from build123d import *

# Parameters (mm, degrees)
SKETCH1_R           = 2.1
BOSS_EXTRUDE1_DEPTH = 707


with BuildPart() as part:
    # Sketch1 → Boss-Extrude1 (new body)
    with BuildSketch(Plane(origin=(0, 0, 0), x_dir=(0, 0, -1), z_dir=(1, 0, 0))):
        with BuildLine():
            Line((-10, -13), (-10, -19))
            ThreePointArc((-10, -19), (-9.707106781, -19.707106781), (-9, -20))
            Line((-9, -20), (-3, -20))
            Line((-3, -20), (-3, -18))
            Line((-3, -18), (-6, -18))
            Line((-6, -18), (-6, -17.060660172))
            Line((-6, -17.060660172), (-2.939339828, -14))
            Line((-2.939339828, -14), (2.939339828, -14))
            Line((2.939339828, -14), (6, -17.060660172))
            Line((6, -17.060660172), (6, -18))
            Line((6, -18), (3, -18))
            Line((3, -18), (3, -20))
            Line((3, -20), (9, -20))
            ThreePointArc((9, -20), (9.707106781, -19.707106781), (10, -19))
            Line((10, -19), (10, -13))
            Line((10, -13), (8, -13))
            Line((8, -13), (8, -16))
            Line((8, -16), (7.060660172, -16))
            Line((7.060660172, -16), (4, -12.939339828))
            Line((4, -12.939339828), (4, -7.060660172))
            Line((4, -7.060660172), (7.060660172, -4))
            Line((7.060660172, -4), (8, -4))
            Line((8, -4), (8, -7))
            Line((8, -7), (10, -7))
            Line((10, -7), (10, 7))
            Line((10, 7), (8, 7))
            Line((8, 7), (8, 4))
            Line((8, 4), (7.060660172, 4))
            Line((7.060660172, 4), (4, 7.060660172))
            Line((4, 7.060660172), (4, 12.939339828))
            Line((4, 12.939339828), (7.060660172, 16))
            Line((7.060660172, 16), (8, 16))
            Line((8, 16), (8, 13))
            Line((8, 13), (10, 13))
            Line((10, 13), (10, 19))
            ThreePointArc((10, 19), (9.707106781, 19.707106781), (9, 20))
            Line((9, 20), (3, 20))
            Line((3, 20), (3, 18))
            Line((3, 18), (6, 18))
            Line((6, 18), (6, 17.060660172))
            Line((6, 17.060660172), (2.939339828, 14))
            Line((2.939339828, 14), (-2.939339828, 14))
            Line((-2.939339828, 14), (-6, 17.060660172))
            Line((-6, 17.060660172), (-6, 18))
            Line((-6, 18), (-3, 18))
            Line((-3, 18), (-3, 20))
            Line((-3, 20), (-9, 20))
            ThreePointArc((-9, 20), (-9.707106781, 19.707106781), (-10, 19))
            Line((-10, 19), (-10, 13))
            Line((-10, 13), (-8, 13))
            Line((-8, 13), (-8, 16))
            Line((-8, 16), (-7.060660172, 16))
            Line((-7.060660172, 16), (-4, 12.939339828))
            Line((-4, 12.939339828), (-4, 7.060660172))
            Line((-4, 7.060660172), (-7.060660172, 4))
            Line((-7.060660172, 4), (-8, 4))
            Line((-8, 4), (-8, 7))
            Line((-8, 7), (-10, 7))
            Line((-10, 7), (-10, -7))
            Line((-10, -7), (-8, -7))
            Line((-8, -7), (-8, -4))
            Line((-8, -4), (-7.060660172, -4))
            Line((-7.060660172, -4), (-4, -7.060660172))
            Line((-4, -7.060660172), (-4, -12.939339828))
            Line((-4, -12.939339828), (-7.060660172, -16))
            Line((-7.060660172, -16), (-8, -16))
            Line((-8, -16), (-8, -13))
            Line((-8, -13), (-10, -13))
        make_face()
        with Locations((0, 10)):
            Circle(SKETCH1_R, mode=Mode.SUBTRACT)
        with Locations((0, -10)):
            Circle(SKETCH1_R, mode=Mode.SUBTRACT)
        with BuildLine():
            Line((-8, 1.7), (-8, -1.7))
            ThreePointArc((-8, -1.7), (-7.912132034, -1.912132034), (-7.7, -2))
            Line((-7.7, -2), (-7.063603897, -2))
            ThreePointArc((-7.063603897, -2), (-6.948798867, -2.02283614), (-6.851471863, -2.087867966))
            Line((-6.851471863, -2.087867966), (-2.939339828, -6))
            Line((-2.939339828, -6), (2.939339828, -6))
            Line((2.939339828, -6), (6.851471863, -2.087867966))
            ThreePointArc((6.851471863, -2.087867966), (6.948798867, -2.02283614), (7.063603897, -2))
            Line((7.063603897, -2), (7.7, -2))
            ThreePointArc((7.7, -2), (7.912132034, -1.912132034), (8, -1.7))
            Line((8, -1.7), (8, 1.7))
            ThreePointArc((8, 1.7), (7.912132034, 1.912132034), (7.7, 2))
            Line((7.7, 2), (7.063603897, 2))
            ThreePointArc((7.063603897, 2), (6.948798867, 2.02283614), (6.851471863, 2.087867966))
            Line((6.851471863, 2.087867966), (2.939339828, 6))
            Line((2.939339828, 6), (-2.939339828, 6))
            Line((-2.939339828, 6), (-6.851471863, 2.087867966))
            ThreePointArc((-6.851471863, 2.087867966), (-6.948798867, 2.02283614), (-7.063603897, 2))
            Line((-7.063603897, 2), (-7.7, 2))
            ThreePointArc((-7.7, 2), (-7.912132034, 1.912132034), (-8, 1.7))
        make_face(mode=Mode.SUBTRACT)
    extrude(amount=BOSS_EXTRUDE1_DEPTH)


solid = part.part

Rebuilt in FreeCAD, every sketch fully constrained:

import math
import FreeCAD as App
import Part
import Sketcher
from FreeCAD import Vector
Q = App.Units.Quantity

doc = App.newDocument("Part")
body = doc.addObject("PartDesign::Body", "Body")

sketch1 = body.newObject("Sketcher::SketchObject", "Sketch")
sketch1.AttachmentSupport = (doc.getObject("YZ_Plane"), [""])
sketch1.MapMode = "FlatFace"
sketch1.addGeometry(Part.LineSegment(Vector(-13, 10, 0), Vector(-19, 10, 0)), False)
sketch1.addGeometry(Part.ArcOfCircle(Part.Circle(Vector(-19, 9, 0), Vector(0, 0, 1), 1), math.radians(90), math.radians(180)), False)
sketch1.addGeometry(Part.LineSegment(Vector(-20, 9, 0), Vector(-20, 3, 0)), False)
sketch1.addGeometry(Part.LineSegment(Vector(-20, 3, 0), Vector(-18, 3, 0)), False)
sketch1.addGeometry(Part.LineSegment(Vector(-18, 3, 0), Vector(-18, 6, 0)), False)
sketch1.addGeometry(Part.LineSegment(Vector(-18, 6, 0), Vector(-17.06, 6, 0)), False)
sketch1.addGeometry(Part.LineSegment(Vector(-17.06, 6, 0), Vector(-14, 2.94, 0)), False)
sketch1.addGeometry(Part.LineSegment(Vector(-14, 2.94, 0), Vector(-14, -2.94, 0)), False)
sketch1.addGeometry(Part.LineSegment(Vector(-14, -2.94, 0), Vector(-17.06, -6, 0)), False)
sketch1.addGeometry(Part.LineSegment(Vector(-17.06, -6, 0), Vector(-18, -6, 0)), False)
sketch1.addGeometry(Part.LineSegment(Vector(-18, -6, 0), Vector(-18, -3, 0)), False)
sketch1.addGeometry(Part.LineSegment(Vector(-18, -3, 0), Vector(-20, -3, 0)), False)
sketch1.addGeometry(Part.LineSegment(Vector(-20, -3, 0), Vector(-20, -9, 0)), False)
sketch1.addGeometry(Part.ArcOfCircle(Part.Circle(Vector(-19, -9, 0), Vector(0, 0, 1), 1), math.radians(-180), math.radians(-90)), False)
sketch1.addGeometry(Part.LineSegment(Vector(-19, -10, 0), Vector(-13, -10, 0)), False)
sketch1.addGeometry(Part.LineSegment(Vector(-13, -10, 0), Vector(-13, -8, 0)), False)
sketch1.addGeometry(Part.LineSegment(Vector(-13, -8, 0), Vector(-16, -8, 0)), False)
sketch1.addGeometry(Part.LineSegment(Vector(-16, -8, 0), Vector(-16, -7.06, 0)), False)
sketch1.addGeometry(Part.LineSegment(Vector(-16, -7.06, 0), Vector(-12.94, -4, 0)), False)
sketch1.addGeometry(Part.LineSegment(Vector(-12.94, -4, 0), Vector(-7.06, -4, 0)), False)
sketch1.addGeometry(Part.LineSegment(Vector(-7.06, -4, 0), Vector(-4, -7.06, 0)), False)
sketch1.addGeometry(Part.LineSegment(Vector(-4, -7.06, 0), Vector(-4, -8, 0)), False)
sketch1.addGeometry(Part.LineSegment(Vector(-4, -8, 0), Vector(-7, -8, 0)), False)
sketch1.addGeometry(Part.LineSegment(Vector(-7, -8, 0), Vector(-7, -10, 0)), False)
sketch1.addGeometry(Part.LineSegment(Vector(-7, -10, 0), Vector(7, -10, 0)), False)
sketch1.addGeometry(Part.LineSegment(Vector(7, -10, 0), Vector(7, -8, 0)), False)
sketch1.addGeometry(Part.LineSegment(Vector(7, -8, 0), Vector(4, -8, 0)), False)
sketch1.addGeometry(Part.LineSegment(Vector(4, -8, 0), Vector(4, -7.06, 0)), False)
sketch1.addGeometry(Part.LineSegment(Vector(4, -7.06, 0), Vector(7.06, -4, 0)), False)
sketch1.addGeometry(Part.LineSegment(Vector(7.06, -4, 0), Vector(12.94, -4, 0)), False)
sketch1.addGeometry(Part.LineSegment(Vector(12.94, -4, 0), Vector(16, -7.06, 0)), False)
sketch1.addGeometry(Part.LineSegment(Vector(16, -7.06, 0), Vector(16, -8, 0)), False)
sketch1.addGeometry(Part.LineSegment(Vector(16, -8, 0), Vector(13, -8, 0)), False)
sketch1.addGeometry(Part.LineSegment(Vector(13, -8, 0), Vector(13, -10, 0)), False)
sketch1.addGeometry(Part.LineSegment(Vector(13, -10, 0), Vector(19, -10, 0)), False)
sketch1.addGeometry(Part.ArcOfCircle(Part.Circle(Vector(19, -9, 0), Vector(0, 0, 1), 1), math.radians(-90), math.radians(0)), False)
sketch1.addGeometry(Part.LineSegment(Vector(20, -9, 0), Vector(20, -3, 0)), False)
sketch1.addGeometry(Part.LineSegment(Vector(20, -3, 0), Vector(18, -3, 0)), False)
sketch1.addGeometry(Part.LineSegment(Vector(18, -3, 0), Vector(18, -6, 0)), False)
sketch1.addGeometry(Part.LineSegment(Vector(18, -6, 0), Vector(17.06, -6, 0)), False)
sketch1.addGeometry(Part.LineSegment(Vector(17.06, -6, 0), Vector(14, -2.94, 0)), False)
sketch1.addGeometry(Part.LineSegment(Vector(14, -2.94, 0), Vector(14, 2.94, 0)), False)
sketch1.addGeometry(Part.LineSegment(Vector(14, 2.94, 0), Vector(17.06, 6, 0)), False)
sketch1.addGeometry(Part.LineSegment(Vector(17.06, 6, 0), Vector(18, 6, 0)), False)
sketch1.addGeometry(Part.LineSegment(Vector(18, 6, 0), Vector(18, 3, 0)), False)
sketch1.addGeometry(Part.LineSegment(Vector(18, 3, 0), Vector(20, 3, 0)), False)
sketch1.addGeometry(Part.LineSegment(Vector(20, 3, 0), Vector(20, 9, 0)), False)
sketch1.addGeometry(Part.ArcOfCircle(Part.Circle(Vector(19, 9, 0), Vector(0, 0, 1), 1), math.radians(0), math.radians(90)), False)
sketch1.addGeometry(Part.LineSegment(Vector(19, 10, 0), Vector(13, 10, 0)), False)
sketch1.addGeometry(Part.LineSegment(Vector(13, 10, 0), Vector(13, 8, 0)), False)
sketch1.addGeometry(Part.LineSegment(Vector(13, 8, 0), Vector(16, 8, 0)), False)
sketch1.addGeometry(Part.LineSegment(Vector(16, 8, 0), Vector(16, 7.06, 0)), False)
sketch1.addGeometry(Part.LineSegment(Vector(16, 7.06, 0), Vector(12.94, 4, 0)), False)
sketch1.addGeometry(Part.LineSegment(Vector(12.94, 4, 0), Vector(7.06, 4, 0)), False)
sketch1.addGeometry(Part.LineSegment(Vector(7.06, 4, 0), Vector(4, 7.06, 0)), False)
sketch1.addGeometry(Part.LineSegment(Vector(4, 7.06, 0), Vector(4, 8, 0)), False)
sketch1.addGeometry(Part.LineSegment(Vector(4, 8, 0), Vector(7, 8, 0)), False)
sketch1.addGeometry(Part.LineSegment(Vector(7, 8, 0), Vector(7, 10, 0)), False)
sketch1.addGeometry(Part.LineSegment(Vector(7, 10, 0), Vector(-7, 10, 0)), False)
sketch1.addGeometry(Part.LineSegment(Vector(-7, 10, 0), Vector(-7, 8, 0)), False)
sketch1.addGeometry(Part.LineSegment(Vector(-7, 8, 0), Vector(-4, 8, 0)), False)
sketch1.addGeometry(Part.LineSegment(Vector(-4, 8, 0), Vector(-4, 7.06, 0)), False)
sketch1.addGeometry(Part.LineSegment(Vector(-4, 7.06, 0), Vector(-7.06, 4, 0)), False)
sketch1.addGeometry(Part.LineSegment(Vector(-7.06, 4, 0), Vector(-12.94, 4, 0)), False)
sketch1.addGeometry(Part.LineSegment(Vector(-12.94, 4, 0), Vector(-16, 7.06, 0)), False)
sketch1.addGeometry(Part.LineSegment(Vector(-16, 7.06, 0), Vector(-16, 8, 0)), False)
sketch1.addGeometry(Part.LineSegment(Vector(-16, 8, 0), Vector(-13, 8, 0)), False)
sketch1.addGeometry(Part.LineSegment(Vector(-13, 8, 0), Vector(-13, 10, 0)), False)
sketch1.addGeometry(Part.Circle(Vector(-10, 0, 0), Vector(0, 0, 1), 2.1), False)
sketch1.addGeometry(Part.LineSegment(Vector(-1.7, 8, 0), Vector(1.7, 8, 0)), False)
sketch1.addGeometry(Part.ArcOfCircle(Part.Circle(Vector(1.7, 7.7, 0), Vector(0, 0, 1), 0.3), math.radians(0), math.radians(90)), False)
sketch1.addGeometry(Part.LineSegment(Vector(2, 7.7, 0), Vector(2, 7.06, 0)), False)
sketch1.addGeometry(Part.ArcOfCircle(Part.Circle(Vector(2.3, 7.06, 0), Vector(0, 0, 1), 0.3), math.radians(180), math.radians(225)), False)
sketch1.addGeometry(Part.LineSegment(Vector(2.09, 6.85, 0), Vector(6, 2.94, 0)), False)
sketch1.addGeometry(Part.LineSegment(Vector(6, 2.94, 0), Vector(6, -2.94, 0)), False)
sketch1.addGeometry(Part.LineSegment(Vector(6, -2.94, 0), Vector(2.09, -6.85, 0)), False)
sketch1.addGeometry(Part.ArcOfCircle(Part.Circle(Vector(2.3, -7.06, 0), Vector(0, 0, 1), 0.3), math.radians(135), math.radians(180)), False)
sketch1.addGeometry(Part.LineSegment(Vector(2, -7.06, 0), Vector(2, -7.7, 0)), False)
sketch1.addGeometry(Part.ArcOfCircle(Part.Circle(Vector(1.7, -7.7, 0), Vector(0, 0, 1), 0.3), math.radians(-90), math.radians(0)), False)
sketch1.addGeometry(Part.LineSegment(Vector(1.7, -8, 0), Vector(-1.7, -8, 0)), False)
sketch1.addGeometry(Part.ArcOfCircle(Part.Circle(Vector(-1.7, -7.7, 0), Vector(0, 0, 1), 0.3), math.radians(-180), math.radians(-90)), False)
sketch1.addGeometry(Part.LineSegment(Vector(-2, -7.7, 0), Vector(-2, -7.06, 0)), False)
sketch1.addGeometry(Part.ArcOfCircle(Part.Circle(Vector(-2.3, -7.06, 0), Vector(0, 0, 1), 0.3), math.radians(0), math.radians(45)), False)
sketch1.addGeometry(Part.LineSegment(Vector(-2.09, -6.85, 0), Vector(-6, -2.94, 0)), False)
sketch1.addGeometry(Part.LineSegment(Vector(-6, -2.94, 0), Vector(-6, 2.94, 0)), False)
sketch1.addGeometry(Part.LineSegment(Vector(-6, 2.94, 0), Vector(-2.09, 6.85, 0)), False)
sketch1.addGeometry(Part.ArcOfCircle(Part.Circle(Vector(-2.3, 7.06, 0), Vector(0, 0, 1), 0.3), math.radians(-45), math.radians(0)), False)
sketch1.addGeometry(Part.LineSegment(Vector(-2, 7.06, 0), Vector(-2, 7.7, 0)), False)
sketch1.addGeometry(Part.ArcOfCircle(Part.Circle(Vector(-1.7, 7.7, 0), Vector(0, 0, 1), 0.3), math.radians(90), math.radians(180)), False)
sketch1.addGeometry(Part.Circle(Vector(10, 0, 0), Vector(0, 0, 1), 2.1), False)
sketch1.addConstraint(Sketcher.Constraint("Tangent", 0, 2, 1, 1))
sketch1.addConstraint(Sketcher.Constraint("Tangent", 1, 2, 2, 1))
sketch1.addConstraint(Sketcher.Constraint("Coincident", 2, 2, 3, 1))
sketch1.addConstraint(Sketcher.Constraint("Coincident", 3, 2, 4, 1))
sketch1.addConstraint(Sketcher.Constraint("Coincident", 4, 2, 5, 1))
sketch1.addConstraint(Sketcher.Constraint("Coincident", 5, 2, 6, 1))
sketch1.addConstraint(Sketcher.Constraint("Coincident", 6, 2, 7, 1))
sketch1.addConstraint(Sketcher.Constraint("Coincident", 7, 2, 8, 1))
sketch1.addConstraint(Sketcher.Constraint("Coincident", 8, 2, 9, 1))
sketch1.addConstraint(Sketcher.Constraint("Coincident", 9, 2, 10, 1))
sketch1.addConstraint(Sketcher.Constraint("Coincident", 10, 2, 11, 1))
sketch1.addConstraint(Sketcher.Constraint("Coincident", 11, 2, 12, 1))
sketch1.addConstraint(Sketcher.Constraint("Tangent", 12, 2, 13, 1))
sketch1.addConstraint(Sketcher.Constraint("Tangent", 13, 2, 14, 1))
sketch1.addConstraint(Sketcher.Constraint("Coincident", 14, 2, 15, 1))
sketch1.addConstraint(Sketcher.Constraint("Coincident", 15, 2, 16, 1))
sketch1.addConstraint(Sketcher.Constraint("Coincident", 16, 2, 17, 1))
sketch1.addConstraint(Sketcher.Constraint("Coincident", 17, 2, 18, 1))
sketch1.addConstraint(Sketcher.Constraint("Coincident", 18, 2, 19, 1))
sketch1.addConstraint(Sketcher.Constraint("Coincident", 19, 2, 20, 1))
sketch1.addConstraint(Sketcher.Constraint("Coincident", 20, 2, 21, 1))
sketch1.addConstraint(Sketcher.Constraint("Coincident", 21, 2, 22, 1))
sketch1.addConstraint(Sketcher.Constraint("Coincident", 22, 2, 23, 1))
sketch1.addConstraint(Sketcher.Constraint("Coincident", 23, 2, 24, 1))
sketch1.addConstraint(Sketcher.Constraint("Coincident", 24, 2, 25, 1))
sketch1.addConstraint(Sketcher.Constraint("Coincident", 25, 2, 26, 1))
sketch1.addConstraint(Sketcher.Constraint("Coincident", 26, 2, 27, 1))
sketch1.addConstraint(Sketcher.Constraint("Coincident", 27, 2, 28, 1))
sketch1.addConstraint(Sketcher.Constraint("Coincident", 28, 2, 29, 1))
sketch1.addConstraint(Sketcher.Constraint("Coincident", 29, 2, 30, 1))
sketch1.addConstraint(Sketcher.Constraint("Coincident", 30, 2, 31, 1))
sketch1.addConstraint(Sketcher.Constraint("Coincident", 31, 2, 32, 1))
sketch1.addConstraint(Sketcher.Constraint("Coincident", 32, 2, 33, 1))
sketch1.addConstraint(Sketcher.Constraint("Coincident", 33, 2, 34, 1))
sketch1.addConstraint(Sketcher.Constraint("Tangent", 34, 2, 35, 1))
sketch1.addConstraint(Sketcher.Constraint("Tangent", 35, 2, 36, 1))
sketch1.addConstraint(Sketcher.Constraint("Coincident", 36, 2, 37, 1))
sketch1.addConstraint(Sketcher.Constraint("Coincident", 37, 2, 38, 1))
sketch1.addConstraint(Sketcher.Constraint("Coincident", 38, 2, 39, 1))
sketch1.addConstraint(Sketcher.Constraint("Coincident", 39, 2, 40, 1))
sketch1.addConstraint(Sketcher.Constraint("Coincident", 40, 2, 41, 1))
sketch1.addConstraint(Sketcher.Constraint("Coincident", 41, 2, 42, 1))
sketch1.addConstraint(Sketcher.Constraint("Coincident", 42, 2, 43, 1))
sketch1.addConstraint(Sketcher.Constraint("Coincident", 43, 2, 44, 1))
sketch1.addConstraint(Sketcher.Constraint("Coincident", 44, 2, 45, 1))
sketch1.addConstraint(Sketcher.Constraint("Coincident", 45, 2, 46, 1))
sketch1.addConstraint(Sketcher.Constraint("Tangent", 46, 2, 47, 1))
sketch1.addConstraint(Sketcher.Constraint("Tangent", 47, 2, 48, 1))
sketch1.addConstraint(Sketcher.Constraint("Coincident", 48, 2, 49, 1))
sketch1.addConstraint(Sketcher.Constraint("Coincident", 49, 2, 50, 1))
sketch1.addConstraint(Sketcher.Constraint("Coincident", 50, 2, 51, 1))
sketch1.addConstraint(Sketcher.Constraint("Coincident", 51, 2, 52, 1))
sketch1.addConstraint(Sketcher.Constraint("Coincident", 52, 2, 53, 1))
sketch1.addConstraint(Sketcher.Constraint("Coincident", 53, 2, 54, 1))
sketch1.addConstraint(Sketcher.Constraint("Coincident", 54, 2, 55, 1))
sketch1.addConstraint(Sketcher.Constraint("Coincident", 55, 2, 56, 1))
sketch1.addConstraint(Sketcher.Constraint("Coincident", 56, 2, 57, 1))
sketch1.addConstraint(Sketcher.Constraint("Coincident", 57, 2, 58, 1))
sketch1.addConstraint(Sketcher.Constraint("Coincident", 58, 2, 59, 1))
sketch1.addConstraint(Sketcher.Constraint("Coincident", 59, 2, 60, 1))
sketch1.addConstraint(Sketcher.Constraint("Coincident", 60, 2, 61, 1))
sketch1.addConstraint(Sketcher.Constraint("Coincident", 61, 2, 62, 1))
sketch1.addConstraint(Sketcher.Constraint("Coincident", 62, 2, 63, 1))
sketch1.addConstraint(Sketcher.Constraint("Coincident", 63, 2, 64, 1))
sketch1.addConstraint(Sketcher.Constraint("Coincident", 64, 2, 65, 1))
sketch1.addConstraint(Sketcher.Constraint("Coincident", 65, 2, 66, 1))
sketch1.addConstraint(Sketcher.Constraint("Coincident", 66, 2, 67, 1))
sketch1.addConstraint(Sketcher.Constraint("Coincident", 67, 2, 0, 1))
sketch1.addConstraint(Sketcher.Constraint("Tangent", 69, 2, 70, 2))
sketch1.addConstraint(Sketcher.Constraint("Tangent", 70, 1, 71, 1))
sketch1.addConstraint(Sketcher.Constraint("Tangent", 71, 2, 72, 1))
sketch1.addConstraint(Sketcher.Constraint("Tangent", 72, 2, 73, 1))
sketch1.addConstraint(Sketcher.Constraint("Coincident", 73, 2, 74, 1))
sketch1.addConstraint(Sketcher.Constraint("Coincident", 74, 2, 75, 1))
sketch1.addConstraint(Sketcher.Constraint("Tangent", 75, 2, 76, 1))
sketch1.addConstraint(Sketcher.Constraint("Tangent", 76, 2, 77, 1))
sketch1.addConstraint(Sketcher.Constraint("Tangent", 77, 2, 78, 2))
sketch1.addConstraint(Sketcher.Constraint("Tangent", 78, 1, 79, 1))
sketch1.addConstraint(Sketcher.Constraint("Tangent", 79, 2, 80, 2))
sketch1.addConstraint(Sketcher.Constraint("Tangent", 80, 1, 81, 1))
sketch1.addConstraint(Sketcher.Constraint("Tangent", 81, 2, 82, 1))
sketch1.addConstraint(Sketcher.Constraint("Tangent", 82, 2, 83, 1))
sketch1.addConstraint(Sketcher.Constraint("Coincident", 83, 2, 84, 1))
sketch1.addConstraint(Sketcher.Constraint("Coincident", 84, 2, 85, 1))
sketch1.addConstraint(Sketcher.Constraint("Tangent", 85, 2, 86, 1))
sketch1.addConstraint(Sketcher.Constraint("Tangent", 86, 2, 87, 1))
sketch1.addConstraint(Sketcher.Constraint("Tangent", 87, 2, 88, 2))
sketch1.addConstraint(Sketcher.Constraint("Tangent", 88, 1, 69, 1))
sketch1.addConstraint(Sketcher.Constraint("Horizontal", 0))
sketch1.addConstraint(Sketcher.Constraint("Vertical", 2))
sketch1.addConstraint(Sketcher.Constraint("Horizontal", 3))
sketch1.addConstraint(Sketcher.Constraint("Vertical", 4))
sketch1.addConstraint(Sketcher.Constraint("Horizontal", 5))
sketch1.addConstraint(Sketcher.Constraint("Vertical", 7))
sketch1.addConstraint(Sketcher.Constraint("Horizontal", 9))
sketch1.addConstraint(Sketcher.Constraint("Vertical", 10))
sketch1.addConstraint(Sketcher.Constraint("Horizontal", 11))
sketch1.addConstraint(Sketcher.Constraint("Vertical", 12))
sketch1.addConstraint(Sketcher.Constraint("Horizontal", 14))
sketch1.addConstraint(Sketcher.Constraint("Vertical", 15))
sketch1.addConstraint(Sketcher.Constraint("Horizontal", 16))
sketch1.addConstraint(Sketcher.Constraint("Vertical", 17))
sketch1.addConstraint(Sketcher.Constraint("Horizontal", 19))
sketch1.addConstraint(Sketcher.Constraint("Vertical", 21))
sketch1.addConstraint(Sketcher.Constraint("Horizontal", 22))
sketch1.addConstraint(Sketcher.Constraint("Vertical", 23))
sketch1.addConstraint(Sketcher.Constraint("Horizontal", 24))
sketch1.addConstraint(Sketcher.Constraint("Vertical", 25))
sketch1.addConstraint(Sketcher.Constraint("Horizontal", 26))
sketch1.addConstraint(Sketcher.Constraint("Vertical", 27))
sketch1.addConstraint(Sketcher.Constraint("Horizontal", 29))
sketch1.addConstraint(Sketcher.Constraint("Vertical", 31))
sketch1.addConstraint(Sketcher.Constraint("Horizontal", 32))
sketch1.addConstraint(Sketcher.Constraint("Vertical", 33))
sketch1.addConstraint(Sketcher.Constraint("Horizontal", 34))
sketch1.addConstraint(Sketcher.Constraint("Vertical", 36))
sketch1.addConstraint(Sketcher.Constraint("Horizontal", 37))
sketch1.addConstraint(Sketcher.Constraint("Vertical", 38))
sketch1.addConstraint(Sketcher.Constraint("Horizontal", 39))
sketch1.addConstraint(Sketcher.Constraint("Vertical", 41))
sketch1.addConstraint(Sketcher.Constraint("Horizontal", 43))
sketch1.addConstraint(Sketcher.Constraint("Vertical", 44))
sketch1.addConstraint(Sketcher.Constraint("Horizontal", 45))
sketch1.addConstraint(Sketcher.Constraint("Vertical", 46))
sketch1.addConstraint(Sketcher.Constraint("Horizontal", 48))
sketch1.addConstraint(Sketcher.Constraint("Vertical", 49))
sketch1.addConstraint(Sketcher.Constraint("Horizontal", 50))
sketch1.addConstraint(Sketcher.Constraint("Vertical", 51))
sketch1.addConstraint(Sketcher.Constraint("Horizontal", 53))
sketch1.addConstraint(Sketcher.Constraint("Vertical", 55))
sketch1.addConstraint(Sketcher.Constraint("Horizontal", 56))
sketch1.addConstraint(Sketcher.Constraint("Vertical", 57))
sketch1.addConstraint(Sketcher.Constraint("Horizontal", 58))
sketch1.addConstraint(Sketcher.Constraint("Vertical", 59))
sketch1.addConstraint(Sketcher.Constraint("Horizontal", 60))
sketch1.addConstraint(Sketcher.Constraint("Vertical", 61))
sketch1.addConstraint(Sketcher.Constraint("Horizontal", 63))
sketch1.addConstraint(Sketcher.Constraint("Vertical", 65))
sketch1.addConstraint(Sketcher.Constraint("Horizontal", 66))
sketch1.addConstraint(Sketcher.Constraint("Vertical", 67))
sketch1.addConstraint(Sketcher.Constraint("Horizontal", 69))
sketch1.addConstraint(Sketcher.Constraint("Vertical", 71))
sketch1.addConstraint(Sketcher.Constraint("Vertical", 74))
sketch1.addConstraint(Sketcher.Constraint("Vertical", 77))
sketch1.addConstraint(Sketcher.Constraint("Horizontal", 79))
sketch1.addConstraint(Sketcher.Constraint("Vertical", 81))
sketch1.addConstraint(Sketcher.Constraint("Vertical", 84))
sketch1.addConstraint(Sketcher.Constraint("Vertical", 87))
sketch1.addConstraint(Sketcher.Constraint("Equal", 1, 13))
sketch1.addConstraint(Sketcher.Constraint("Equal", 13, 35))
sketch1.addConstraint(Sketcher.Constraint("Equal", 35, 47))
sketch1.addConstraint(Sketcher.Constraint("Equal", 70, 72))
sketch1.addConstraint(Sketcher.Constraint("Equal", 72, 76))
sketch1.addConstraint(Sketcher.Constraint("Equal", 76, 78))
sketch1.addConstraint(Sketcher.Constraint("Equal", 78, 80))
sketch1.addConstraint(Sketcher.Constraint("Equal", 80, 82))
sketch1.addConstraint(Sketcher.Constraint("Equal", 82, 86))
sketch1.addConstraint(Sketcher.Constraint("Equal", 86, 88))
sketch1.addConstraint(Sketcher.Constraint("Equal", 68, 89))
sketch1.addConstraint(Sketcher.Constraint("Symmetric", 1, 3, 35, 3, -1, 1))
sketch1.addConstraint(Sketcher.Constraint("Symmetric", 13, 3, 47, 3, -1, 1))
sketch1.addConstraint(Sketcher.Constraint("Symmetric", 70, 3, 80, 3, -1, 1))
sketch1.addConstraint(Sketcher.Constraint("Symmetric", 76, 3, 86, 3, -1, 1))
sketch1.addConstraint(Sketcher.Constraint("Symmetric", 68, 3, 89, 3, -1, 1))
sketch1.addConstraint(Sketcher.Constraint("Symmetric", 3, 2, 37, 2, -1, 1))
sketch1.addConstraint(Sketcher.Constraint("Symmetric", 5, 2, 39, 2, -1, 1))
sketch1.addConstraint(Sketcher.Constraint("Symmetric", 6, 2, 40, 2, -1, 1))
sketch1.addConstraint(Sketcher.Constraint("Symmetric", 8, 2, 42, 2, -1, 1))
sketch1.addConstraint(Sketcher.Constraint("Symmetric", 10, 2, 44, 2, -1, 1))
sketch1.addConstraint(Sketcher.Constraint("Symmetric", 15, 2, 49, 2, -1, 1))
sketch1.addConstraint(Sketcher.Constraint("Symmetric", 17, 2, 51, 2, -1, 1))
sketch1.addConstraint(Sketcher.Constraint("Symmetric", 18, 2, 52, 2, -1, 1))
sketch1.addConstraint(Sketcher.Constraint("Symmetric", 20, 2, 54, 2, -1, 1))
sketch1.addConstraint(Sketcher.Constraint("Symmetric", 22, 2, 56, 2, -1, 1))
sketch1.addConstraint(Sketcher.Constraint("Symmetric", 24, 2, 58, 2, -1, 1))
sketch1.addConstraint(Sketcher.Constraint("Symmetric", 26, 2, 60, 2, -1, 1))
sketch1.addConstraint(Sketcher.Constraint("Symmetric", 28, 2, 62, 2, -1, 1))
sketch1.addConstraint(Sketcher.Constraint("Symmetric", 30, 2, 64, 2, -1, 1))
sketch1.addConstraint(Sketcher.Constraint("Symmetric", 32, 2, 66, 2, -1, 1))
sketch1.addConstraint(Sketcher.Constraint("Symmetric", 72, 2, 82, 2, -1, 1))
sketch1.addConstraint(Sketcher.Constraint("Symmetric", 74, 2, 84, 2, -1, 1))
sketch1.addConstraint(Sketcher.Constraint("Symmetric", 13, 3, 35, 3, -2))
sketch1.addConstraint(Sketcher.Constraint("Symmetric", 76, 3, 82, 3, -2))
sketch1.addConstraint(Sketcher.Constraint("Symmetric", 22, 2, 25, 2, -2))
sketch1.addConstraint(Sketcher.Constraint("Symmetric", 20, 2, 27, 2, -2))
sketch1.addConstraint(Sketcher.Constraint("Symmetric", 19, 2, 28, 2, -2))
sketch1.addConstraint(Sketcher.Constraint("Symmetric", 17, 2, 30, 2, -2))
sketch1.addConstraint(Sketcher.Constraint("Symmetric", 15, 2, 32, 2, -2))
sketch1.addConstraint(Sketcher.Constraint("Symmetric", 10, 2, 37, 2, -2))
sketch1.addConstraint(Sketcher.Constraint("Symmetric", 8, 2, 39, 2, -2))
sketch1.addConstraint(Sketcher.Constraint("PointOnObject", 68, 3, -1))
sketch1.addConstraint(Sketcher.Constraint("Perpendicular", 6, 8))
sketch1.addConstraint(Sketcher.Constraint("Parallel", 8, 18))
sketch1.addConstraint(Sketcher.Constraint("Perpendicular", 18, 20))
sketch1.addConstraint(Sketcher.Constraint("Perpendicular", 20, 28))
sketch1.addConstraint(Sketcher.Constraint("Perpendicular", 28, 30))
sketch1.addConstraint(Sketcher.Constraint("Perpendicular", 40, 42))
sketch1.addConstraint(Sketcher.Constraint("Perpendicular", 52, 54))
sketch1.addConstraint(Sketcher.Constraint("Perpendicular", 54, 62))
sketch1.addConstraint(Sketcher.Constraint("Perpendicular", 62, 64))
sketch1.addConstraint(Sketcher.Constraint("Parallel", 64, 73))
sketch1.addConstraint(Sketcher.Constraint("Perpendicular", 73, 75))
sketch1.addConstraint(Sketcher.Constraint("Horizontal", 17, 2, 20, 2))
sketch1.addConstraint(Sketcher.Constraint("Horizontal", 16, 2, 21, 2))
sketch1.addConstraint(Sketcher.Constraint("Horizontal", 14, 2, 23, 2))
sketch1.addConstraint(Sketcher.Constraint("Horizontal", 66, 2, 69, 2))
sketch1.addConstraint(Sketcher.Constraint("Horizontal", 41, 2, 73, 2))
sketch1.addConstraint(Sketcher.Constraint("Equal", 16, 22))
sketch1.addConstraint(Sketcher.Constraint("Equal", 48, 2))
sketch1.addConstraint(Sketcher.Constraint("Equal", 66, 4))
sketch1.addConstraint(Sketcher.Constraint("Equal", 63, 7))
sketch1.addConstraint(Sketcher.Constraint("Equal", 45, 15))
sketch1.addConstraint(Sketcher.Constraint("Equal", 43, 17))
sketch1.addConstraint(Sketcher.Constraint("Equal", 8, 18))
sketch1.addConstraint(Sketcher.Constraint("Radius", 1, Q("1 mm")))
sketch1.addConstraint(Sketcher.Constraint("Diameter", 68, Q("4.2 mm")))
sketch1.addConstraint(Sketcher.Constraint("Radius", 70, Q("0.3 mm")))
sketch1.addConstraint(Sketcher.Constraint("DistanceX", 0, 2, 0, 1, Q("6 mm")))
sketch1.addConstraint(Sketcher.Constraint("DistanceX", 3, 1, 3, 2, Q("2 mm")))
sketch1.addConstraint(Sketcher.Constraint("DistanceX", 16, 2, 16, 1, Q("3 mm")))
sketch1.addConstraint(Sketcher.Constraint("DistanceX", 24, 1, 24, 2, Q("14 mm")))
sketch1.addConstraint(Sketcher.Constraint("DistanceX", 69, 1, 69, 2, Q("3.4 mm")))
sketch1.addConstraint(Sketcher.Constraint("DistanceX", 1, 3, -1, 1, Q("19 mm")))
sketch1.addConstraint(Sketcher.Constraint("DistanceX", 68, 3, -1, 1, Q("10 mm")))
sketch1.addConstraint(Sketcher.Constraint("DistanceX", 6, 2, -1, 1, Q("14 mm")))
sketch1.addConstraint(Sketcher.Constraint("DistanceX", -1, 1, 73, 2, Q("6 mm")))
sketch1.addConstraint(Sketcher.Constraint("DistanceX", 5, 1, 5, 2, Q("0.93934 mm")))
pad1 = body.newObject("PartDesign::Pad", "Pad")
pad1.Profile = sketch1
pad1.Length = 707

doc.recompute()
